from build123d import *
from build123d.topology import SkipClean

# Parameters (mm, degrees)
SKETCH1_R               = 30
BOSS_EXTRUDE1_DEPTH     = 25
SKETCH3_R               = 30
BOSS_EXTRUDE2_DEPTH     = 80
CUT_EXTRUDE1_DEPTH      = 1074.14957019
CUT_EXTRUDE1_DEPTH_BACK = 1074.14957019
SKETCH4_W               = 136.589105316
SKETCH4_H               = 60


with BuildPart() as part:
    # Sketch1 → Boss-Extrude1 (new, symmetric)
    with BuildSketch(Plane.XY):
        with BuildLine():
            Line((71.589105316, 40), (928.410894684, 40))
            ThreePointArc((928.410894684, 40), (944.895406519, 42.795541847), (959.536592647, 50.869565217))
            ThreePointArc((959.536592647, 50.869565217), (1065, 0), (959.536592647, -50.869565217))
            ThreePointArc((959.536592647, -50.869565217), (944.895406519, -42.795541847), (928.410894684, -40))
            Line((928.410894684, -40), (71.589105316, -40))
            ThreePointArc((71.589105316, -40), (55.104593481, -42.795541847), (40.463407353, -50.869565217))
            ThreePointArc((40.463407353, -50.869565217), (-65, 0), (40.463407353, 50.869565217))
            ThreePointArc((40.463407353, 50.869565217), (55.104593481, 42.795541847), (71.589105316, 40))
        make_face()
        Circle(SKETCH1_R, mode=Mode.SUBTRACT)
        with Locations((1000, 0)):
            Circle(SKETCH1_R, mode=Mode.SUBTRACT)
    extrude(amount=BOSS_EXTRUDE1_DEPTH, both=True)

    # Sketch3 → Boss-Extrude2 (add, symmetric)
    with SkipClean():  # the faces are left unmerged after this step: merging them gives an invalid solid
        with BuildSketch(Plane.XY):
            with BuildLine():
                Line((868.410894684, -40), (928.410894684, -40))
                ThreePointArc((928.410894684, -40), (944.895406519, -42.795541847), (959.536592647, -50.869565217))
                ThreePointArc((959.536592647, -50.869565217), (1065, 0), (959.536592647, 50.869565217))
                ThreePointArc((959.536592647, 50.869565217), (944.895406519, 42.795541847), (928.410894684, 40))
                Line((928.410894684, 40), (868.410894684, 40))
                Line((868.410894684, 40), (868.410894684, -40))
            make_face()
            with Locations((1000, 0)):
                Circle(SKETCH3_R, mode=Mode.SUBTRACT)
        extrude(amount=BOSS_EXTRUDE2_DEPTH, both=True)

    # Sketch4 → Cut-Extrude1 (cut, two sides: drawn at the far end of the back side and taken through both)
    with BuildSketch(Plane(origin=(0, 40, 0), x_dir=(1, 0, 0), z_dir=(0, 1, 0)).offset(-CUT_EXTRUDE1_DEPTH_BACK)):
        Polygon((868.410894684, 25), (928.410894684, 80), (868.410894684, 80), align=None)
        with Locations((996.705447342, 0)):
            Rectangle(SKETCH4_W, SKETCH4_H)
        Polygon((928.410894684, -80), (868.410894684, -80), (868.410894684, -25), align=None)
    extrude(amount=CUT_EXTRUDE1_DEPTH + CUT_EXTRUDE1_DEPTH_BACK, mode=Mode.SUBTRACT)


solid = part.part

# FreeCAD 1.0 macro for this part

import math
import FreeCAD as App
import Part
import Sketcher

V = App.Vector
Q = App.Units.Quantity

doc = App.newDocument("Part")
body = doc.addObject("PartDesign::Body", "Body")

sketch1 = body.newObject("Sketcher::SketchObject", "Sketch")
sketch1.AttachmentSupport = (doc.getObject("XY_Plane"), [""])
sketch1.MapMode = "FlatFace"
sketch1.addGeometry(Part.LineSegment(V(928, 40, 0), V(72, 40, 0)), False)
sketch1.addGeometry(Part.ArcOfCircle(Part.Circle(V(72, 90, 0), V(0, 0, 1), 50), math.radians(-128), math.radians(-90)), False)
sketch1.addGeometry(Part.ArcOfCircle(Part.Circle(V(0, 0, 0), V(0, 0, 1), 65), math.radians(52), math.radians(308)), False)
sketch1.addGeometry(Part.ArcOfCircle(Part.Circle(V(72, -90, 0), V(0, 0, 1), 50), math.radians(90), math.radians(128)), False)
sketch1.addGeometry(Part.LineSegment(V(72, -40, 0), V(928, -40, 0)), False)
sketch1.addGeometry(Part.ArcOfCircle(Part.Circle(V(928, -90, 0), V(0, 0, 1), 50), math.radians(52), math.radians(90)), False)
sketch1.addGeometry(Part.ArcOfCircle(Part.Circle(V(1000, 0, 0), V(0, 0, 1), 65), math.radians(-128), math.radians(128)), False)
sketch1.addGeometry(Part.ArcOfCircle(Part.Circle(V(928, 90, 0), V(0, 0, 1), 50), math.radians(-90), math.radians(-52)), False)
sketch1.addGeometry(Part.Circle(V(1000, 0, 0), V(0, 0, 1), 30), False)
sketch1.addGeometry(Part.Circle(V(0, 0, 0), V(0, 0, 1), 30), False)
sketch1.addConstraint(Sketcher.Constraint("Tangent", 0, 2, 1, 2))
sketch1.addConstraint(Sketcher.Constraint("Tangent", 1, 1, 2, 1))
sketch1.addConstraint(Sketcher.Constraint("Tangent", 2, 2, 3, 2))
sketch1.addConstraint(Sketcher.Constraint("Tangent", 3, 1, 4, 1))
sketch1.addConstraint(Sketcher.Constraint("Tangent", 4, 2, 5, 2))
sketch1.addConstraint(Sketcher.Constraint("Tangent", 5, 1, 6, 1))
sketch1.addConstraint(Sketcher.Constraint("Tangent", 6, 2, 7, 2))
sketch1.addConstraint(Sketcher.Constraint("Tangent", 7, 1, 0, 1))
sketch1.addConstraint(Sketcher.Constraint("Horizontal", 0))
sketch1.addConstraint(Sketcher.Constraint("Horizontal", 4))
sketch1.addConstraint(Sketcher.Constraint("Coincident", 2, 3, -1, 1))
sketch1.addConstraint(Sketcher.Constraint("Coincident", 9, 3, -1, 1))
sketch1.addConstraint(Sketcher.Constraint("Coincident", 8, 3, 6, 3))
sketch1.addConstraint(Sketcher.Constraint("Equal", 1, 3))
sketch1.addConstraint(Sketcher.Constraint("Equal", 3, 5))
sketch1.addConstraint(Sketcher.Constraint("Equal", 2, 6))
sketch1.addConstraint(Sketcher.Constraint("Equal", 5, 7))
sketch1.addConstraint(Sketcher.Constraint("Equal", 8, 9))
sketch1.addConstraint(Sketcher.Constraint("Symmetric", 5, 3, 7, 3, -1))
sketch1.addConstraint(Sketcher.Constraint("Diameter", 8, Q("60 mm")))
sketch1.addConstraint(Sketcher.Constraint("Radius", 1, Q("50 mm")))
sketch1.addConstraint(Sketcher.Constraint("Radius", 2, Q("65 mm")))
sketch1.addConstraint(Sketcher.Constraint("DistanceY", -1, 1, 1, 3, Q("90 mm")))
sketch1.addConstraint(Sketcher.Constraint("DistanceX", -1, 1, 6, 3, Q("1000 mm")))
pad1 = body.newObject("PartDesign::Pad", "Pad")
pad1.Profile = sketch1
pad1.Length = 50
pad1.Midplane = True

sketch2 = body.newObject("Sketcher::SketchObject", "Sketch001")
sketch2.AttachmentSupport = (doc.getObject("XY_Plane"), [""])
sketch2.MapMode = "FlatFace"
sketch2.addGeometry(Part.LineSegment(V(868, -40, 0), V(928, -40, 0)), False)
sketch2.addGeometry(Part.ArcOfCircle(Part.Circle(V(928, -90, 0), V(0, 0, 1), 50), math.radians(52), math.radians(90)), False)
sketch2.addGeometry(Part.ArcOfCircle(Part.Circle(V(1000, 0, 0), V(0, 0, 1), 65), math.radians(-128), math.radians(128)), False)
sketch2.addGeometry(Part.ArcOfCircle(Part.Circle(V(928, 90, 0), V(0, 0, 1), 50), math.radians(-90), math.radians(-52)), False)
sketch2.addGeometry(Part.LineSegment(V(928, 40, 0), V(868, 40, 0)), False)
sketch2.addGeometry(Part.LineSegment(V(868, 40, 0), V(868, -40, 0)), False)
sketch2.addGeometry(Part.Circle(V(1000, 0, 0), V(0, 0, 1), 30), False)
sketch2.addConstraint(Sketcher.Constraint("Tangent", 0, 2, 1, 2))
sketch2.addConstraint(Sketcher.Constraint("Tangent", 1, 1, 2, 1))
sketch2.addConstraint(Sketcher.Constraint("Tangent", 2, 2, 3, 2))
sketch2.addConstraint(Sketcher.Constraint("Tangent", 3, 1, 4, 1))
sketch2.addConstraint(Sketcher.Constraint("Coincident", 4, 2, 5, 1))
sketch2.addConstraint(Sketcher.Constraint("Coincident", 5, 2, 0, 1))
sketch2.addConstraint(Sketcher.Constraint("Horizontal", 0))
sketch2.addConstraint(Sketcher.Constraint("Horizontal", 4))
sketch2.addConstraint(Sketcher.Constraint("Vertical", 5))
sketch2.addConstraint(Sketcher.Constraint("Coincident", 6, 3, 2, 3))
sketch2.addConstraint(Sketcher.Constraint("Equal", 1, 3))
sketch2.addConstraint(Sketcher.Constraint("Symmetric", 1, 3, 3, 3, -1))
sketch2.addConstraint(Sketcher.Constraint("Diameter", 6, Q("60 mm")))
sketch2.addConstraint(Sketcher.Constraint("Radius", 1, Q("50 mm")))
sketch2.addConstraint(Sketcher.Constraint("Radius", 2, Q("65 mm")))
sketch2.addConstraint(Sketcher.Constraint("DistanceX", 0, 1, 0, 2, Q("60 mm")))
sketch2.addConstraint(Sketcher.Constraint("DistanceY", 5, 2, 5, 1, Q("80 mm")))
sketch2.addConstraint(Sketcher.Constraint("DistanceX", -1, 1, 2, 3, Q("1000 mm")))
pad2 = body.newObject("PartDesign::Pad", "Pad001")
pad2.Profile = sketch2
pad2.Length = 160
pad2.Midplane = True

sketch3 = body.newObject("Sketcher::SketchObject", "Sketch002")
sketch3.AttachmentSupport = (doc.getObject("XZ_Plane"), [""])
sketch3.MapMode = "FlatFace"
sketch3.AttachmentOffset = App.Placement(V(0, 0, -40), App.Rotation())
sketch3.addGeometry(Part.LineSegment(V(868, -25, 0), V(928, -80, 0)), False)
sketch3.addGeometry(Part.LineSegment(V(928, -80, 0), V(868, -80, 0)), False)
sketch3.addGeometry(Part.LineSegment(V(868, -80, 0), V(868, -25, 0)), False)
sketch3.addGeometry(Part.LineSegment(V(928, -30, 0), V(928, 30, 0)), False)
sketch3.addGeometry(Part.LineSegment(V(928, 30, 0), V(1065, 30, 0)), False)
sketch3.addGeometry(Part.LineSegment(V(1065, 30, 0), V(1065, -30, 0)), False)
sketch3.addGeometry(Part.LineSegment(V(1065, -30, 0), V(928, -30, 0)), False)
sketch3.addGeometry(Part.LineSegment(V(868, 80, 0), V(928, 80, 0)), False)
sketch3.addGeometry(Part.LineSegment(V(928, 80, 0), V(868, 25, 0)), False)
sketch3.addGeometry(Part.LineSegment(V(868, 25, 0), V(868, 80, 0)), False)
sketch3.addConstraint(Sketcher.Constraint("Coincident", 0, 2, 1, 1))
sketch3.addConstraint(Sketcher.Constraint("Coincident", 1, 2, 2, 1))
sketch3.addConstraint(Sketcher.Constraint("Coincident", 2, 2, 0, 1))
sketch3.addConstraint(Sketcher.Constraint("Coincident", 3, 2, 4, 1))
sketch3.addConstraint(Sketcher.Constraint("Coincident", 4, 2, 5, 1))
sketch3.addConstraint(Sketcher.Constraint("Coincident", 5, 2, 6, 1))
sketch3.addConstraint(Sketcher.Constraint("Coincident", 6, 2, 3, 1))
sketch3.addConstraint(Sketcher.Constraint("Coincident", 7, 2, 8, 1))
sketch3.addConstraint(Sketcher.Constraint("Coincident", 8, 2, 9, 1))
sketch3.addConstraint(Sketcher.Constraint("Coincident", 9, 2, 7, 1))
sketch3.addConstraint(Sketcher.Constraint("Horizontal", 1))
sketch3.addConstraint(Sketcher.Constraint("Vertical", 2))
sketch3.addConstraint(Sketcher.Constraint("Vertical", 3))
sketch3.addConstraint(Sketcher.Constraint("Horizontal", 4))
sketch3.addConstraint(Sketcher.Constraint("Vertical", 5))
sketch3.addConstraint(Sketcher.Constraint("Horizontal", 6))
sketch3.addConstraint(Sketcher.Constraint("Horizontal", 7))
sketch3.addConstraint(Sketcher.Constraint("Vertical", 9))
sketch3.addConstraint(Sketcher.Constraint("Symmetric", 0, 2, 7, 2, -1))
sketch3.addConstraint(Sketcher.Constraint("Symmetric", 2, 2, 8, 2, -1))
sketch3.addConstraint(Sketcher.Constraint("Vertical", 0, 2, 3, 2))
sketch3.addConstraint(Sketcher.Constraint("Equal", 7, 3))
sketch3.addConstraint(Sketcher.Constraint("DistanceX", 1, 2, 1, 1, Q("60 mm")))
sketch3.addConstraint(Sketcher.Constraint("DistanceY", 2, 1, 2, 2, Q("55 mm")))
sketch3.addConstraint(Sketcher.Constraint("DistanceY", 0, 2, -1, 1, Q("80 mm")))
sketch3.addConstraint(Sketcher.Constraint("DistanceY", -1, 1, 3, 2, Q("30 mm")))
sketch3.addConstraint(Sketcher.Constraint("DistanceX", -1, 1, 4, 2, Q("1065 mm")))
sketch3.addConstraint(Sketcher.Constraint("DistanceX", 4, 1, 4, 2, Q("136.589105 mm")))
pocket1 = body.newObject("PartDesign::Pocket", "Pocket")
pocket1.Profile = sketch3
pocket1.Type = "ThroughAll"
pocket1.Midplane = True

doc.recompute()
